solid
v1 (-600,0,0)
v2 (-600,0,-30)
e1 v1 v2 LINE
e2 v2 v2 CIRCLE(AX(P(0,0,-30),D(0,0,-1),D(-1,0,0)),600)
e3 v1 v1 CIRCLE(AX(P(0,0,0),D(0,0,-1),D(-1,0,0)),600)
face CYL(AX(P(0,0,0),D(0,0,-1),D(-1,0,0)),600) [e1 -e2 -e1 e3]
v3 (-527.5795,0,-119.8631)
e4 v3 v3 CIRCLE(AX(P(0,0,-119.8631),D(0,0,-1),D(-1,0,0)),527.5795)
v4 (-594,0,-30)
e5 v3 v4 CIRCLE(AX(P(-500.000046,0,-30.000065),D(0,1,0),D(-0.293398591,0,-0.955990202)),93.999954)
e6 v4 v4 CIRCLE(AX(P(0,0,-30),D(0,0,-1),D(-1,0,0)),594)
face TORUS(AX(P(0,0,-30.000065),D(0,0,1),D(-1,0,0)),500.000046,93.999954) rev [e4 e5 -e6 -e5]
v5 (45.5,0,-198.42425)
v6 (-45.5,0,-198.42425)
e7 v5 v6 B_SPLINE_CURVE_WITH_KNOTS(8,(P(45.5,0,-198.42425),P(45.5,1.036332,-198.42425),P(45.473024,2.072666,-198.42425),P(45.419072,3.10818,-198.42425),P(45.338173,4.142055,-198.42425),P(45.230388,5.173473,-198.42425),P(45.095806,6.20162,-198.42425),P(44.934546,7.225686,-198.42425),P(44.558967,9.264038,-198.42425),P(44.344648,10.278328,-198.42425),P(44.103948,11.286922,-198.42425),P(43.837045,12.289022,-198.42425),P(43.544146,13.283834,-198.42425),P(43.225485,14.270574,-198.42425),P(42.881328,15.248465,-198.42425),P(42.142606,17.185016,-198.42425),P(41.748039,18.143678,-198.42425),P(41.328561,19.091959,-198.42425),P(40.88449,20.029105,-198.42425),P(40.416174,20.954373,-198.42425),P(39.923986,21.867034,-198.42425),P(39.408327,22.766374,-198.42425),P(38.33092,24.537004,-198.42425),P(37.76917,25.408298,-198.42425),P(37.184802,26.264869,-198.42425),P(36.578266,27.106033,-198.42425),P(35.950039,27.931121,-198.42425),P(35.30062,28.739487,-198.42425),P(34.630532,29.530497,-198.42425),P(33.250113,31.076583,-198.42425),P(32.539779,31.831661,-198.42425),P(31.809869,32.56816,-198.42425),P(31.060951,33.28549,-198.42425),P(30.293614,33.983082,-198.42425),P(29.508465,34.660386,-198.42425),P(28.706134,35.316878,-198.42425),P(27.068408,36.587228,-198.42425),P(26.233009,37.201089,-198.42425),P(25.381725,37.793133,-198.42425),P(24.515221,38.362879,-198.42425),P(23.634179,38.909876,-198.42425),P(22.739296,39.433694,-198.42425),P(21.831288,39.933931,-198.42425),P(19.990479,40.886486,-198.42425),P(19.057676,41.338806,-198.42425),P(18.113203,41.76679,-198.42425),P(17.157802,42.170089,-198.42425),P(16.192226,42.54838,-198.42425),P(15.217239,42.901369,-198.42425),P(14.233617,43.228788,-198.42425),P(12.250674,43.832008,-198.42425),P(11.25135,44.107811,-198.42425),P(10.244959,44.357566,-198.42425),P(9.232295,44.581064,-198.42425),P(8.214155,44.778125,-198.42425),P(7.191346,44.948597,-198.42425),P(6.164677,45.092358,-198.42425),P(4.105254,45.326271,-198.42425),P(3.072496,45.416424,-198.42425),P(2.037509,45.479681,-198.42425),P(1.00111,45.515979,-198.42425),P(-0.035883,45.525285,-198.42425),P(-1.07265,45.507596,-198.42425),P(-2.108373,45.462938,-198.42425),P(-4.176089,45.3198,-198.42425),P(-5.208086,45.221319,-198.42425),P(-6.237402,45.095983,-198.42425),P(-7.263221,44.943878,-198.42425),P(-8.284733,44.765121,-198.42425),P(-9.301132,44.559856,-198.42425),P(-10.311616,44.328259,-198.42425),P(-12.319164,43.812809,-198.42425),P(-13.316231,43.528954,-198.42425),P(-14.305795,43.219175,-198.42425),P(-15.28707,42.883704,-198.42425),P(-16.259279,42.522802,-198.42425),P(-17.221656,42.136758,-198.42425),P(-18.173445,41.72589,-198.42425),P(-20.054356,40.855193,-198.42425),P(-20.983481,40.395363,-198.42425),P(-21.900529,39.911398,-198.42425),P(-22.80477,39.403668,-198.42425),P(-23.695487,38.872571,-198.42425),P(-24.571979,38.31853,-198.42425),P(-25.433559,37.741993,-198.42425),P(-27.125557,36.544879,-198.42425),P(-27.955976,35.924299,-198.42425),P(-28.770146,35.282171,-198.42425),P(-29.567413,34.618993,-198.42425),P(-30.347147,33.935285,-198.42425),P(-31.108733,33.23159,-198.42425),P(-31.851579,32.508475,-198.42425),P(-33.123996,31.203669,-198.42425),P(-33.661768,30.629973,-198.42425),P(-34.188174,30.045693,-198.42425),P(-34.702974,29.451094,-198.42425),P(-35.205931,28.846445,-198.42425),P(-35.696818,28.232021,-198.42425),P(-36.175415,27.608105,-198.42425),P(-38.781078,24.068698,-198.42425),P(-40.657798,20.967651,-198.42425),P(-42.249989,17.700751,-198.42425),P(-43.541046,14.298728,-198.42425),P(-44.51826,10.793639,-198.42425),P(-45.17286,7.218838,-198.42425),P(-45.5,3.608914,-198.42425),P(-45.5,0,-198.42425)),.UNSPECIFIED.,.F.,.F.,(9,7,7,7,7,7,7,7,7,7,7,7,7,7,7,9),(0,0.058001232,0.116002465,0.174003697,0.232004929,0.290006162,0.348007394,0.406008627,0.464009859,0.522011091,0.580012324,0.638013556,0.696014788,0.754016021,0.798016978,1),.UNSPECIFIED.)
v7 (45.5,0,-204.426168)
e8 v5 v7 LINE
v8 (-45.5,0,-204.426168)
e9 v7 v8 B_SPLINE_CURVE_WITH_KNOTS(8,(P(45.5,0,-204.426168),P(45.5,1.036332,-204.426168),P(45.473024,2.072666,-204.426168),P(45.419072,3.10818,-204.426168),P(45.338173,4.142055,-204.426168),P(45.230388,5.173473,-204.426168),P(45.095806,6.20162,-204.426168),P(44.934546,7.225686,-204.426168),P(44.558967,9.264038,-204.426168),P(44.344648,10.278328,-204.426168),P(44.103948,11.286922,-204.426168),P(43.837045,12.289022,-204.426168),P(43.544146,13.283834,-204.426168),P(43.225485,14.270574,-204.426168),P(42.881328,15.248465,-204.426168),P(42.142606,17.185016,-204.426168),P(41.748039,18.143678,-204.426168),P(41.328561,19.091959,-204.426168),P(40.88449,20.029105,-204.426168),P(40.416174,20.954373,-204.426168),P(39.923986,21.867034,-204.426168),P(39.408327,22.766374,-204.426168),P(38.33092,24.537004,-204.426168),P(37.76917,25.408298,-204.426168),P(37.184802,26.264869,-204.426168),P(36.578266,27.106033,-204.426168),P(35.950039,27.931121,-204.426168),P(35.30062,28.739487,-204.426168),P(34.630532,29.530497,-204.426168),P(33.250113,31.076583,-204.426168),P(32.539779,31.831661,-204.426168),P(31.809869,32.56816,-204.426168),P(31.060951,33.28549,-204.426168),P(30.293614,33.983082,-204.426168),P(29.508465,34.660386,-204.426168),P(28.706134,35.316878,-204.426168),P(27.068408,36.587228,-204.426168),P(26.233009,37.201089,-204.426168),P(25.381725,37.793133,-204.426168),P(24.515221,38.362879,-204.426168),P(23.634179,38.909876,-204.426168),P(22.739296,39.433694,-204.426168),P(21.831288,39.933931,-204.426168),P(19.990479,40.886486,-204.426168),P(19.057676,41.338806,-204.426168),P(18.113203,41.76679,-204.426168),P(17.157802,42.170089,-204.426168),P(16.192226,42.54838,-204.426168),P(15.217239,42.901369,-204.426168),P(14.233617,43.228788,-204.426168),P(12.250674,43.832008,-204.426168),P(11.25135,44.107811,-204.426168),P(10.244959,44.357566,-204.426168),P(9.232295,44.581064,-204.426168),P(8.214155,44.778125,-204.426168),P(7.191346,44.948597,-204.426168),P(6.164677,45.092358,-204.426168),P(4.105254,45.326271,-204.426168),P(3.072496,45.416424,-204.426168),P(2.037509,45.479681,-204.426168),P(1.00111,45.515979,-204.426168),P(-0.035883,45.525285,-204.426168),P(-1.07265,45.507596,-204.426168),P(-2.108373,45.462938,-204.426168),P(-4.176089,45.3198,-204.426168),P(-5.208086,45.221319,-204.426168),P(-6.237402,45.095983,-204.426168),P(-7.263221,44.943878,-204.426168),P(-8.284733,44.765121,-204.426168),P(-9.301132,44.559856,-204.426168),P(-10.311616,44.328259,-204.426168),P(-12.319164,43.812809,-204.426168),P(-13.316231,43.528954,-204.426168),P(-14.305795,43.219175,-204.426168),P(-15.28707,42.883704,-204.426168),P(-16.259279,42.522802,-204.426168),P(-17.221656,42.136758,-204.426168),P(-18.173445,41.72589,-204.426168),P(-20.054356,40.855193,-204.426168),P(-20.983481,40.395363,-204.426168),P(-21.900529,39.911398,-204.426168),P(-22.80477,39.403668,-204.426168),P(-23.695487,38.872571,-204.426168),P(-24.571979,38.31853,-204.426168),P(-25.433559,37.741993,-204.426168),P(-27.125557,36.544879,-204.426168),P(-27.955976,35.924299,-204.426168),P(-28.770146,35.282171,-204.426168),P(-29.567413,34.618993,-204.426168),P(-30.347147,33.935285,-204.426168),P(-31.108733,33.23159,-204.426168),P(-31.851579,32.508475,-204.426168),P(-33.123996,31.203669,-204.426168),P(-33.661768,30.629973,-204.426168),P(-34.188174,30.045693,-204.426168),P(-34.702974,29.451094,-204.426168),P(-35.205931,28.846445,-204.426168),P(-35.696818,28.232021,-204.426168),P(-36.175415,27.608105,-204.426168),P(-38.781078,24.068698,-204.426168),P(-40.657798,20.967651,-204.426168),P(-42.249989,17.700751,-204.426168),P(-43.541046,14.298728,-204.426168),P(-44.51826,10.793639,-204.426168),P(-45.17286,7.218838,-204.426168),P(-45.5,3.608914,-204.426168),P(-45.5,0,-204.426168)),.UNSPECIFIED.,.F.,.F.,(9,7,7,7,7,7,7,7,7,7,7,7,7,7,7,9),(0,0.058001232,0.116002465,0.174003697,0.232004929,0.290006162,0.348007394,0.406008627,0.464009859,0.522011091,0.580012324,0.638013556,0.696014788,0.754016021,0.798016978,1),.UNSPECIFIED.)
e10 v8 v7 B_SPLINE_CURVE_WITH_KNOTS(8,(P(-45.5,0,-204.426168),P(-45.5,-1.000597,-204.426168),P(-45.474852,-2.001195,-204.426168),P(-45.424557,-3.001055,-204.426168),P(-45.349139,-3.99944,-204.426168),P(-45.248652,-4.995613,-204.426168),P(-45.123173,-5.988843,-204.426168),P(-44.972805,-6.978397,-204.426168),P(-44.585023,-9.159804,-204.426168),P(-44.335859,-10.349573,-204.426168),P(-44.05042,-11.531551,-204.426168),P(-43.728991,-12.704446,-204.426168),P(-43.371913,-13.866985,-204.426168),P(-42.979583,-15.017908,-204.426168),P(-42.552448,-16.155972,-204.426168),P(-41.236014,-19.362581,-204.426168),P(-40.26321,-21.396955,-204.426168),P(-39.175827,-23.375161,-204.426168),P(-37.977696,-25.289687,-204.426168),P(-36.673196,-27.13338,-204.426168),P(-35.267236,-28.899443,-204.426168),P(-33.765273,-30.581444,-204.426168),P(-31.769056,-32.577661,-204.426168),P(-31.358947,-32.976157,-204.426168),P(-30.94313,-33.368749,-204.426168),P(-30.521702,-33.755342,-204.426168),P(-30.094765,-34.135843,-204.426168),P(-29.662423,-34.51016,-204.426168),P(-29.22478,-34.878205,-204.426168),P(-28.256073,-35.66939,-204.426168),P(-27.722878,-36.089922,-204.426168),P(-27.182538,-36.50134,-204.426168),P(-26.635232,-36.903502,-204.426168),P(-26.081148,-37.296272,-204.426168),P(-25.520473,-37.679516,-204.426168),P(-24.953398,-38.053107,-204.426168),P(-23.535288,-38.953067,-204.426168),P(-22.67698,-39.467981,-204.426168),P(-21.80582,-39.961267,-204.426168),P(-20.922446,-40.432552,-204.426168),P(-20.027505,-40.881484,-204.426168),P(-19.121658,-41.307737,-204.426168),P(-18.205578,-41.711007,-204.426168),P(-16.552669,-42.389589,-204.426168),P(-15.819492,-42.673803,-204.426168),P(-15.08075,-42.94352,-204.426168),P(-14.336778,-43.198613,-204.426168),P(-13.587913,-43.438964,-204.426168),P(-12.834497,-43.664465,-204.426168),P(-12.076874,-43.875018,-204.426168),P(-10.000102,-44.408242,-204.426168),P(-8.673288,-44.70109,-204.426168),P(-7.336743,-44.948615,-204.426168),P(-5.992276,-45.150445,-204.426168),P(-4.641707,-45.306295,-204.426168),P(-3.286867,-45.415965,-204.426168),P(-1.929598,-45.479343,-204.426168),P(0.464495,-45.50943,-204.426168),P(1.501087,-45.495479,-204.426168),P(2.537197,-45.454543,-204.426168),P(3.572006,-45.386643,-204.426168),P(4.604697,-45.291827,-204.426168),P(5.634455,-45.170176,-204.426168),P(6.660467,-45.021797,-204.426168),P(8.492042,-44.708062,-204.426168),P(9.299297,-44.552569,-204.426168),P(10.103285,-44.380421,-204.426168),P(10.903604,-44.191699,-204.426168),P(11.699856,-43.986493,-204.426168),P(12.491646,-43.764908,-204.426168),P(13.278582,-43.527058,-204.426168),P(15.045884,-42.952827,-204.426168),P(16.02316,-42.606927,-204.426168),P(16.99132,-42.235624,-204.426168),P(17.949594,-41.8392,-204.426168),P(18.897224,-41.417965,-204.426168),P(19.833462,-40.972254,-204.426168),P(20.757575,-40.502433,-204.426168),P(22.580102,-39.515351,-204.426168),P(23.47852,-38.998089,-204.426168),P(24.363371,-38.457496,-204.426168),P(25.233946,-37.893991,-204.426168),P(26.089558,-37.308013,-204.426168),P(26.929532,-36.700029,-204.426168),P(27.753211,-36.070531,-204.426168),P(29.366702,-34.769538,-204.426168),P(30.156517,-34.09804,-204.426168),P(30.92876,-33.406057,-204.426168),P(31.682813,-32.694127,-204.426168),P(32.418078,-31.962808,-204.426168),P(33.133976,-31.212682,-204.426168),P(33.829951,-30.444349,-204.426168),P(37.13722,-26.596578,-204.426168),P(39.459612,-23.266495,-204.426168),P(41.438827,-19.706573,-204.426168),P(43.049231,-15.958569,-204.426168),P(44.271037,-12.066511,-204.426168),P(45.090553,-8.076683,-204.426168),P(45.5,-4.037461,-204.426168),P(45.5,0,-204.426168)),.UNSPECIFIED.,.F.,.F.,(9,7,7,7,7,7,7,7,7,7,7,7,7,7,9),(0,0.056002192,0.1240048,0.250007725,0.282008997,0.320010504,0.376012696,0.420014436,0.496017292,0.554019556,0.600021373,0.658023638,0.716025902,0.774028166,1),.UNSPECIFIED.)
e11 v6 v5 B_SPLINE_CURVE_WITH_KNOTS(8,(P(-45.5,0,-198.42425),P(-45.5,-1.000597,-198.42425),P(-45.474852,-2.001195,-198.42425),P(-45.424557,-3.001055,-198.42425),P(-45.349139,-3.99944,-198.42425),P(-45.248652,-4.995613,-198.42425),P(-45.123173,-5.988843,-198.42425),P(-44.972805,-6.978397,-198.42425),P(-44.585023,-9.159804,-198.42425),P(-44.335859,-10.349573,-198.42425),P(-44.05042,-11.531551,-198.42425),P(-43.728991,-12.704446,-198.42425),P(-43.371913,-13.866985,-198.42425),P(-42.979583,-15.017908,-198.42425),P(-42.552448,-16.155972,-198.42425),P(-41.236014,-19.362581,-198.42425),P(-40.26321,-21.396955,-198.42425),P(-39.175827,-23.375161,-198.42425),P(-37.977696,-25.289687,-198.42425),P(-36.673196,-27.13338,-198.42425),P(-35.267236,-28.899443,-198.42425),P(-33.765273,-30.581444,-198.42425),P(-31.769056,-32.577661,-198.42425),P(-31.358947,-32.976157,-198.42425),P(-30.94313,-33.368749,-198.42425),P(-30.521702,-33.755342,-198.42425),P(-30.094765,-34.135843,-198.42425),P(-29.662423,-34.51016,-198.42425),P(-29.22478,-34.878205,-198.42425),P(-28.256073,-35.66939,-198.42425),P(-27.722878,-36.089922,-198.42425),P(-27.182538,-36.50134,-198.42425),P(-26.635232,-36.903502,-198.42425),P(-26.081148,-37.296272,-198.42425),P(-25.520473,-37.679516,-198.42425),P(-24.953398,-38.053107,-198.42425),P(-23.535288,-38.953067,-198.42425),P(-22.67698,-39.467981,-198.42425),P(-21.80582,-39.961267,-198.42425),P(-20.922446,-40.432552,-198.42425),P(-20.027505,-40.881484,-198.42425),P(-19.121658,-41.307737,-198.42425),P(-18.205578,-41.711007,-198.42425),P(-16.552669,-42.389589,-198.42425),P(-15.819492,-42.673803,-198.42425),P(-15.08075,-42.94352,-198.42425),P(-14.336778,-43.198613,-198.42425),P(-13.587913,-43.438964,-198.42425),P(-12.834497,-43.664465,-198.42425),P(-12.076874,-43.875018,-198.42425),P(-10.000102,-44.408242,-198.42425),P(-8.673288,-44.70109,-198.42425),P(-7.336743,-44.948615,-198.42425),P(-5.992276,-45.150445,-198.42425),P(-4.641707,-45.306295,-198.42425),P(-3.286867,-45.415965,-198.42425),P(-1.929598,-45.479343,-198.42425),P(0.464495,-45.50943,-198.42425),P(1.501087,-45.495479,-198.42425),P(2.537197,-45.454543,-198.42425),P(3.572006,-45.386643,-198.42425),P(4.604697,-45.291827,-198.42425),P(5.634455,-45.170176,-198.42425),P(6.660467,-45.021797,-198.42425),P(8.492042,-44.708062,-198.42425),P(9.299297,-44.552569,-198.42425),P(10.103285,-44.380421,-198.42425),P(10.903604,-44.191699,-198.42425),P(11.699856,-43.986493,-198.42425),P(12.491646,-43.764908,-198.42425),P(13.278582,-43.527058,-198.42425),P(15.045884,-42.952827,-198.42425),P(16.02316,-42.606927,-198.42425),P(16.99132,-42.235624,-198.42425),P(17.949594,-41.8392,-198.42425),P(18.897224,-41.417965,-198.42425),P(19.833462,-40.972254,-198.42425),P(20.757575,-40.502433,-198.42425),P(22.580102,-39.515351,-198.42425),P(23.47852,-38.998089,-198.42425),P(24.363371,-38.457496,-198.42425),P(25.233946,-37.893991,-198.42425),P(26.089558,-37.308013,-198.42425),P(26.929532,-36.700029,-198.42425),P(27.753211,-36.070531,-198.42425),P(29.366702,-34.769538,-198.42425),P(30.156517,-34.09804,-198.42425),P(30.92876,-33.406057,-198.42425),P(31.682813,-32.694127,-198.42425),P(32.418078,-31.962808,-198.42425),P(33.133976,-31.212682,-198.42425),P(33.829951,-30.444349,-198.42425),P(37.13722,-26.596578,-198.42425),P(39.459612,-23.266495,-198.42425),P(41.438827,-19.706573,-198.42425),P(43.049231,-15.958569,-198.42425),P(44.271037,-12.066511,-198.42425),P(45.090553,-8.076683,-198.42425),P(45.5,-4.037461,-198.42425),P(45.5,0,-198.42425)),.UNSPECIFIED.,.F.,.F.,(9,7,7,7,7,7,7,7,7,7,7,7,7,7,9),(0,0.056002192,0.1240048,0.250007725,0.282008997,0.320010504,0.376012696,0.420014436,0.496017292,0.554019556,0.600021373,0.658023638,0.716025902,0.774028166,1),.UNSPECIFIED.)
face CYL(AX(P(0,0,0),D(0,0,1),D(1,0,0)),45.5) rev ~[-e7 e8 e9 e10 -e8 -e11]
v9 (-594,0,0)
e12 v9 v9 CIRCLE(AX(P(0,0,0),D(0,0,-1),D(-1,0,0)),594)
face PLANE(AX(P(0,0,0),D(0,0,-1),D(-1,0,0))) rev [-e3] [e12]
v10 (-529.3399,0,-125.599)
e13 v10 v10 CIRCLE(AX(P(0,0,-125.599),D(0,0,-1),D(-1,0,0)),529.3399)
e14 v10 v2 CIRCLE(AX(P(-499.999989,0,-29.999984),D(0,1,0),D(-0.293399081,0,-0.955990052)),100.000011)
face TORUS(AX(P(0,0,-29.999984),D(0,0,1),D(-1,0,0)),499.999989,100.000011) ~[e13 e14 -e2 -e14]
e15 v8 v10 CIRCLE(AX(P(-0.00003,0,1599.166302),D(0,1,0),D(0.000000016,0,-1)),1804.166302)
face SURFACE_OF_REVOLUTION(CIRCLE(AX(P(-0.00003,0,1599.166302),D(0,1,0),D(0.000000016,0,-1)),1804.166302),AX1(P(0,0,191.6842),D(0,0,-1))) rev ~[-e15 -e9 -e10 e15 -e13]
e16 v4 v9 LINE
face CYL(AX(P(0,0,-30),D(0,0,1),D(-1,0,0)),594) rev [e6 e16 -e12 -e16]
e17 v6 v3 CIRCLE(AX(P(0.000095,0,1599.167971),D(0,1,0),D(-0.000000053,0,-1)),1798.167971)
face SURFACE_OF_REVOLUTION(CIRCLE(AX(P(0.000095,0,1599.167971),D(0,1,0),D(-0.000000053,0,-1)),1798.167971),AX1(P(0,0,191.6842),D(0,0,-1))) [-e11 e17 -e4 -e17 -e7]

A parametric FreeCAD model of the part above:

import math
import FreeCAD as App
import Part
import Sketcher
Q = App.Units.Quantity

doc = App.newDocument("Part")
body = doc.addObject("PartDesign::Body", "Body")

# Sketch on XZ plane
sketch1 = body.newObject("Sketcher::SketchObject", "Sketch")
sketch1.AttachmentSupport = (doc.getObject("XZ_Plane"), [""])
sketch1.MapMode = "FlatFace"
sketch1.addGeometry(Part.LineSegment(App.Vector(-600, -30, 0), App.Vector(-600, 0, 0)), False)
sketch1.addGeometry(Part.LineSegment(App.Vector(-600, 0, 0), App.Vector(-594, 0, 0)), False)
sketch1.addGeometry(Part.LineSegment(App.Vector(-594, 0, 0), App.Vector(-594, -30, 0)), False)
sketch1.addGeometry(Part.ArcOfCircle(Part.Circle(App.Vector(-500, -30, 0), App.Vector(0, 0, 1), 94), math.radians(180), math.radians(253)), False)
sketch1.addGeometry(Part.ArcOfCircle(Part.Circle(App.Vector(0, 1599, 0), App.Vector(0, 0, 1), 1798), math.radians(-107.06), math.radians(-90)), False)
sketch1.addGeometry(Part.LineSegment(App.Vector(0, -199, 0), App.Vector(0, -205, 0)), False)
sketch1.addGeometry(Part.ArcOfCircle(Part.Circle(App.Vector(0, 1599, 0), App.Vector(0, 0, 1), 1804), math.radians(-107.06), math.radians(-90)), False)
sketch1.addGeometry(Part.ArcOfCircle(Part.Circle(App.Vector(-500, -30, 0), App.Vector(0, 0, 1), 100), math.radians(180), math.radians(253)), False)
sketch1.addConstraint(Sketcher.Constraint("Coincident", 0, 2, 1, 1))
sketch1.addConstraint(Sketcher.Constraint("Coincident", 1, 2, 2, 1))
sketch1.addConstraint(Sketcher.Constraint("Tangent", 2, 2, 3, 1))
sketch1.addConstraint(Sketcher.Constraint("Tangent", 3, 2, 4, 1))
sketch1.addConstraint(Sketcher.Constraint("Coincident", 4, 2, 5, 1))
sketch1.addConstraint(Sketcher.Constraint("Coincident", 5, 2, 6, 2))
sketch1.addConstraint(Sketcher.Constraint("Tangent", 6, 1, 7, 2))
sketch1.addConstraint(Sketcher.Constraint("Tangent", 7, 1, 0, 1))
sketch1.addConstraint(Sketcher.Constraint("Vertical", 0))
sketch1.addConstraint(Sketcher.Constraint("Horizontal", 1))
sketch1.addConstraint(Sketcher.Constraint("Vertical", 2))
sketch1.addConstraint(Sketcher.Constraint("Vertical", 5))
sketch1.addConstraint(Sketcher.Constraint("Coincident", 7, 3, 3, 3))
sketch1.addConstraint(Sketcher.Constraint("PointOnObject", 4, 3, -2))
sketch1.addConstraint(Sketcher.Constraint("PointOnObject", 6, 3, -2))
sketch1.addConstraint(Sketcher.Constraint("PointOnObject", 0, 2, -1))
sketch1.addConstraint(Sketcher.Constraint("PointOnObject", 5, 2, -2))
sketch1.addConstraint(Sketcher.Constraint("Equal", 1, 5))
sketch1.addConstraint(Sketcher.Constraint("Radius", 7, Q("100 mm")))
sketch1.addConstraint(Sketcher.Constraint("DistanceX", 1, 1, 1, 2, Q("6 mm")))
sketch1.addConstraint(Sketcher.Constraint("DistanceY", 0, 1, 0, 2, Q("30 mm")))
sketch1.addConstraint(Sketcher.Constraint("DistanceY", 5, 2, -1, 1, Q("205 mm")))
sketch1.addConstraint(Sketcher.Constraint("Radius", 6, Q("1804.1667 mm")))
revolution = body.newObject("PartDesign::Revolution", "Revolution")
revolution.Profile = sketch1
revolution.ReferenceAxis = (sketch1, ["V_Axis"])
revolution.Angle = 360

# Sketch on XY plane
sketch2 = body.newObject("Sketcher::SketchObject", "Sketch001")
sketch2.AttachmentSupport = (doc.getObject("XY_Plane"), [""])
sketch2.MapMode = "FlatFace"
sketch2.addGeometry(Part.Circle(App.Vector(0, 0, 0), App.Vector(0, 0, 1), 46), False)
sketch2.addConstraint(Sketcher.Constraint("Coincident", 0, 3, -1, 1))
sketch2.addConstraint(Sketcher.Constraint("Diameter", 0, Q("91 mm")))
pocket1 = body.newObject("PartDesign::Pocket", "Pocket")
pocket1.Profile = sketch2
pocket1.Type = "ThroughAll"

doc.recompute()
